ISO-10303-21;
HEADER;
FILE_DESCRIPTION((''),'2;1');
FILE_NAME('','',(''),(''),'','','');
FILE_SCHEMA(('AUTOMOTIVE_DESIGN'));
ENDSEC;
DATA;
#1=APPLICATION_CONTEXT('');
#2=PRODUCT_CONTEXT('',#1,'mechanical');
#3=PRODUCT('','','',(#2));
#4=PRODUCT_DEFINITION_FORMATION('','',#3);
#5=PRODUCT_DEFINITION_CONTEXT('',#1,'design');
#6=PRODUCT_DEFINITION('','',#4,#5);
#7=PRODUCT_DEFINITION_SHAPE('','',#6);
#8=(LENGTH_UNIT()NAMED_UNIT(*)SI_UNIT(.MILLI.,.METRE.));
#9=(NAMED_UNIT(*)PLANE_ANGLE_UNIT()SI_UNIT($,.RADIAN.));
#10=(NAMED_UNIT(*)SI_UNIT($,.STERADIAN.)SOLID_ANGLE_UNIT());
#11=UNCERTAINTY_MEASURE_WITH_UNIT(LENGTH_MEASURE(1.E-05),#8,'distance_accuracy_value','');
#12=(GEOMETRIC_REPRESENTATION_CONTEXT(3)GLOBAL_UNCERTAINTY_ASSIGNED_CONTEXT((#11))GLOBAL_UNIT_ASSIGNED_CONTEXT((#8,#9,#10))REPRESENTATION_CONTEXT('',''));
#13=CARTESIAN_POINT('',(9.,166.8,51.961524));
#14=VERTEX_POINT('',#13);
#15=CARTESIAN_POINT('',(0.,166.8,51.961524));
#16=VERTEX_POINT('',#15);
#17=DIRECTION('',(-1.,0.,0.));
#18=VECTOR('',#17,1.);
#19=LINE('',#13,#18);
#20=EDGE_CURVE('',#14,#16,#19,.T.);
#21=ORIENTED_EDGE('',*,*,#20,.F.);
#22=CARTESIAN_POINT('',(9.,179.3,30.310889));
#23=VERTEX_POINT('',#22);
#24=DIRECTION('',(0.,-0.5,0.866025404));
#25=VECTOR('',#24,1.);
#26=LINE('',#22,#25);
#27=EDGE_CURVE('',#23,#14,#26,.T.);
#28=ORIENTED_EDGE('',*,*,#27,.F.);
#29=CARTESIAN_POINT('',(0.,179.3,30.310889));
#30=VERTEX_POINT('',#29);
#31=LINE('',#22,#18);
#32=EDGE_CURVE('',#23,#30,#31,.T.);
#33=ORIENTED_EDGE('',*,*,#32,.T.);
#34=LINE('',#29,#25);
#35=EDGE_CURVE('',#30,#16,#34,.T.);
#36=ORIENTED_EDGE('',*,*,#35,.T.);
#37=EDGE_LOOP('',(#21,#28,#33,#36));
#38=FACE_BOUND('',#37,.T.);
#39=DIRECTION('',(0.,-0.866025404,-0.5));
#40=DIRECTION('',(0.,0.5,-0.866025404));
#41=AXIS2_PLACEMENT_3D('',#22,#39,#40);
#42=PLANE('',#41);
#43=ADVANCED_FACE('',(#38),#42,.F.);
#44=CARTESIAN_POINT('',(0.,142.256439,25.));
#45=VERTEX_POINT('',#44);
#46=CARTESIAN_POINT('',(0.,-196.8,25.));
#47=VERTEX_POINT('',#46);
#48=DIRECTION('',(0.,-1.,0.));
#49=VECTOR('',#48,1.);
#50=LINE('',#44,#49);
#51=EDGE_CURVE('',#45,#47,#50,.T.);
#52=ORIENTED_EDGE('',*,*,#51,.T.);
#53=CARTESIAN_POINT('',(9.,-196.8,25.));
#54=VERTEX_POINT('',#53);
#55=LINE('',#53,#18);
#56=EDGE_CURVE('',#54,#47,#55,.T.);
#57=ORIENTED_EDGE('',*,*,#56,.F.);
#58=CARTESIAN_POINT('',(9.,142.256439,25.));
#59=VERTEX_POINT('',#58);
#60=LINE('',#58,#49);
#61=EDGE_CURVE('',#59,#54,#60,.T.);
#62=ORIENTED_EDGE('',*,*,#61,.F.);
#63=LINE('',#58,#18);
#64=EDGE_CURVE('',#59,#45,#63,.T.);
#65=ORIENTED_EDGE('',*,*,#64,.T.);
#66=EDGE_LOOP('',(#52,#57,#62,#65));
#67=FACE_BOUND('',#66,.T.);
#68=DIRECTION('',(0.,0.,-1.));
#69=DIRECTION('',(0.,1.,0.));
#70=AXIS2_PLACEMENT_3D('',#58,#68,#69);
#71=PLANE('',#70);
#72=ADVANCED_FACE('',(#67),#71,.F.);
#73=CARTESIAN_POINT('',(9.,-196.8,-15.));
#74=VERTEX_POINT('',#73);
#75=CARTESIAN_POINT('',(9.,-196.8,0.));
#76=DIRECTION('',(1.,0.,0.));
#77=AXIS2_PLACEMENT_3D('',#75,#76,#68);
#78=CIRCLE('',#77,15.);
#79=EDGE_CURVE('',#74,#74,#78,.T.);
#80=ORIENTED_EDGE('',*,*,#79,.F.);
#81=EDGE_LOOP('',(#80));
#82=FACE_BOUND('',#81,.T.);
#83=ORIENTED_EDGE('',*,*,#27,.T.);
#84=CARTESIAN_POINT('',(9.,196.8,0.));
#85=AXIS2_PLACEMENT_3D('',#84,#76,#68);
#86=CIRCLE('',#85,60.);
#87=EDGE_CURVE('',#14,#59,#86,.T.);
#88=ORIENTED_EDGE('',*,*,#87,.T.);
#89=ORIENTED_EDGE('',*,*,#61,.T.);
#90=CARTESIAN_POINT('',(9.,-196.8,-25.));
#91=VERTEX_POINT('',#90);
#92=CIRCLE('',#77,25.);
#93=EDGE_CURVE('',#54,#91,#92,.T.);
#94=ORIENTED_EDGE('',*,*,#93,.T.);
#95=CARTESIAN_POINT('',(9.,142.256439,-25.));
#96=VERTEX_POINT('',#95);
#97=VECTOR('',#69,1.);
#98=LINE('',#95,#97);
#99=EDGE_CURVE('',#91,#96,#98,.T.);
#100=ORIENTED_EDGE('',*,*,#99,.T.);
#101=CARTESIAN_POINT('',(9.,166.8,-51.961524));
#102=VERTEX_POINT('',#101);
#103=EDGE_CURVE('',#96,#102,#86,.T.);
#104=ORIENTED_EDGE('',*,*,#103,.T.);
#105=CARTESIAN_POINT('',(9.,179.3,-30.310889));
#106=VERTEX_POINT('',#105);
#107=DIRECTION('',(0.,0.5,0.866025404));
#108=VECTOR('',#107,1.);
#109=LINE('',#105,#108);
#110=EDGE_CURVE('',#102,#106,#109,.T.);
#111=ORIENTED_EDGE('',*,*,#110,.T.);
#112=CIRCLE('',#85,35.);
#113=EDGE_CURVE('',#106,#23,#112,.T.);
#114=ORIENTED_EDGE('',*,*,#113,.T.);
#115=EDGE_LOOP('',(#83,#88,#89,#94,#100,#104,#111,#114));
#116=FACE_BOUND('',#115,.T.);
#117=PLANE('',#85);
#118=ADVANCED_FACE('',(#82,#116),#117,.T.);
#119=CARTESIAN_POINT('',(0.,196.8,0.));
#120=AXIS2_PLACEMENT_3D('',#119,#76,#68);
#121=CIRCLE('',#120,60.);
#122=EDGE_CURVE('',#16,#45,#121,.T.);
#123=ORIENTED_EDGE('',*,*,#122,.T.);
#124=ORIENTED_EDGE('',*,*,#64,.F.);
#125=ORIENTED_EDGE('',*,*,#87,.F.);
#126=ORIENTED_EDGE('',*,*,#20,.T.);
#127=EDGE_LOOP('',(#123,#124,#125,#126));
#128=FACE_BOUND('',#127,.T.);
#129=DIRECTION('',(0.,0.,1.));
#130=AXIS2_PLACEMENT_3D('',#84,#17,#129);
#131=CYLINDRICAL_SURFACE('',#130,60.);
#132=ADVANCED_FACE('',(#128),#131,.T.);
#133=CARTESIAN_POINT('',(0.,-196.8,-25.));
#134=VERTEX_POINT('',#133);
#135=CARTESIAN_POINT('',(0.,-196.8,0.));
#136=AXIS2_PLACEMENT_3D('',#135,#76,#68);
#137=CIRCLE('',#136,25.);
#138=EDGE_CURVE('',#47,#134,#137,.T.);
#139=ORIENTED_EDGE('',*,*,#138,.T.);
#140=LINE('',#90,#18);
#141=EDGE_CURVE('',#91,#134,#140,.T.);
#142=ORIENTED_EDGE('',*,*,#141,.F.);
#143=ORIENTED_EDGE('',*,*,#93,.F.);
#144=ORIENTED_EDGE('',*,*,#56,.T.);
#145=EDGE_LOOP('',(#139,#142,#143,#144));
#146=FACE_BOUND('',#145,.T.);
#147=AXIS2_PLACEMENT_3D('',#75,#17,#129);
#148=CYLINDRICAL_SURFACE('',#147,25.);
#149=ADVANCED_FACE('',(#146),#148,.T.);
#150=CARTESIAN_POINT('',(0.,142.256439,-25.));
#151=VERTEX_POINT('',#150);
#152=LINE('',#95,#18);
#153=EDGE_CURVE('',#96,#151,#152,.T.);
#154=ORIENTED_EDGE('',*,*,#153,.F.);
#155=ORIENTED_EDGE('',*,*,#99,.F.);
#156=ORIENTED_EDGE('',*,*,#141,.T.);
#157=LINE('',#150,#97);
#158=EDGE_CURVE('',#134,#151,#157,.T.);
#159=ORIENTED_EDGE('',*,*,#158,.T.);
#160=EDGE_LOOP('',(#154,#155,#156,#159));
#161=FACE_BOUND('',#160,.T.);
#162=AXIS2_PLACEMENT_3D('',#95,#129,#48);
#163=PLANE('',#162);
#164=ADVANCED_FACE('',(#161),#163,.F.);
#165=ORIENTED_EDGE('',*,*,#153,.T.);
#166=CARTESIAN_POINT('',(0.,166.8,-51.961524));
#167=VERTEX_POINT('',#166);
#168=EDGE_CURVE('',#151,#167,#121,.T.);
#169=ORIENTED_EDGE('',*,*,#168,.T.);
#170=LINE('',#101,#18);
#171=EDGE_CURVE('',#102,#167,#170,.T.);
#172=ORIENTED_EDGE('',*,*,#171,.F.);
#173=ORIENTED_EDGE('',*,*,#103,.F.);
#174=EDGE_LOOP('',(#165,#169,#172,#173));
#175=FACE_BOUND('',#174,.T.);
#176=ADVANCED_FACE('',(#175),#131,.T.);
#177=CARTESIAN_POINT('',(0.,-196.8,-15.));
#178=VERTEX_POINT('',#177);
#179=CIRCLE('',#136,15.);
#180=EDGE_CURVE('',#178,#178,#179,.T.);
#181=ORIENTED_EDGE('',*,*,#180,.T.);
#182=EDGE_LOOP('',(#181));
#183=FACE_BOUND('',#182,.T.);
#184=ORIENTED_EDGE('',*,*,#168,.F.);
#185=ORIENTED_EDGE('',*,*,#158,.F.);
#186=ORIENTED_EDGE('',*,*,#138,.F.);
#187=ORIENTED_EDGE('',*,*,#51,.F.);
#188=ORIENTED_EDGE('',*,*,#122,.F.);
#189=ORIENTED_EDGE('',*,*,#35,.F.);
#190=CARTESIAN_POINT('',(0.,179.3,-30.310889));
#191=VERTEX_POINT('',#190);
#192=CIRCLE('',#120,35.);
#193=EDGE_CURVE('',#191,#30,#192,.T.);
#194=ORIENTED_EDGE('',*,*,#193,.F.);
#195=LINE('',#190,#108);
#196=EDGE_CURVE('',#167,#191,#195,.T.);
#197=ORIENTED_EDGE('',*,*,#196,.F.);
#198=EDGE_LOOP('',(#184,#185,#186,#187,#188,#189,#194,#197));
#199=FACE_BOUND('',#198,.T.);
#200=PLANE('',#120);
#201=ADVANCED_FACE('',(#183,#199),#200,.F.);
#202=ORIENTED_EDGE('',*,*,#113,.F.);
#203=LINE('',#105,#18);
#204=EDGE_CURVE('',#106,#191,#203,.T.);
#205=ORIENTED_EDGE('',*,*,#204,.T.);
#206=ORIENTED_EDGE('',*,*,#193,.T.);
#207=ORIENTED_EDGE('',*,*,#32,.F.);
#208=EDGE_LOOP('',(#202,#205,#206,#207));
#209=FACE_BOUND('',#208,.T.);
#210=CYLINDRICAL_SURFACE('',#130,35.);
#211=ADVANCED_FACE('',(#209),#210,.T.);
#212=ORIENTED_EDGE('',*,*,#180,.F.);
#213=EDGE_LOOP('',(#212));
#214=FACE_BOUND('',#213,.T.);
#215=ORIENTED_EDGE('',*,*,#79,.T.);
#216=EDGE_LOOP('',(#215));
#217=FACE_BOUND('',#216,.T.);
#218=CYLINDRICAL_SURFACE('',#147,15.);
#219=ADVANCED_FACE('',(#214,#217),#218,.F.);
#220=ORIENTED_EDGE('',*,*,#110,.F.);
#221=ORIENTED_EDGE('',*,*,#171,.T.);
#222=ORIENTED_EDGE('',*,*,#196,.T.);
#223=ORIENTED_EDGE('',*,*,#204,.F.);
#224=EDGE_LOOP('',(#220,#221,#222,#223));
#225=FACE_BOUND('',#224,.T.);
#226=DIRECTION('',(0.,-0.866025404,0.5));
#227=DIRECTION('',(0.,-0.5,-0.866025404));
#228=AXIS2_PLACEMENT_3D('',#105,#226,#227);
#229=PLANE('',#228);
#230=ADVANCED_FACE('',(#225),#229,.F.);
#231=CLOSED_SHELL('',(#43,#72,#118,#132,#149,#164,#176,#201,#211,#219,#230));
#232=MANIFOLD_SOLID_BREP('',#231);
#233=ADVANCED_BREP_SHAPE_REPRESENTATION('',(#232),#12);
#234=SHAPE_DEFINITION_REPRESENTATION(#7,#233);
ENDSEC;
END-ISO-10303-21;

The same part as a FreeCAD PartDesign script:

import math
import FreeCAD as App
import Part
import Sketcher

V = App.Vector
Q = App.Units.Quantity

doc = App.newDocument("Part")
body = doc.addObject("PartDesign::Body", "Body")

sketch1 = body.newObject("Sketcher::SketchObject", "Sketch")
sketch1.AttachmentSupport = (doc.getObject("YZ_Plane"), [""])
sketch1.MapMode = "FlatFace"
sketch1.addGeometry([
    Part.LineSegment(V(167, -52, 0), V(179, -30, 0)),
    Part.ArcOfCircle(Part.Circle(V(197, 0, 0), V(0, 0, 1), 35), math.radians(-120), math.radians(120)),
    Part.LineSegment(V(179, 30, 0), V(167, 52, 0)),
    Part.ArcOfCircle(Part.Circle(V(197, 0, 0), V(0, 0, 1), 60), math.radians(120), math.radians(155)),
    Part.LineSegment(V(142, 25, 0), V(-197, 25, 0)),
    Part.ArcOfCircle(Part.Circle(V(-197, 0, 0), V(0, 0, 1), 25), math.radians(90), math.radians(270)),
    Part.LineSegment(V(-197, -25, 0), V(142, -25, 0)),
    Part.ArcOfCircle(Part.Circle(V(197, 0, 0), V(0, 0, 1), 60), math.radians(-155), math.radians(-120)),
    Part.Circle(V(-197, 0, 0), V(0, 0, 1), 15),
], False)
sketch1.addConstraint([
    Sketcher.Constraint("Coincident", 0, 2, 1, 1),
    Sketcher.Constraint("Coincident", 1, 2, 2, 1),
    Sketcher.Constraint("Coincident", 2, 2, 3, 1),
    Sketcher.Constraint("Coincident", 3, 2, 4, 1),
    Sketcher.Constraint("Tangent", 4, 2, 5, 1),
    Sketcher.Constraint("Tangent", 5, 2, 6, 1),
    Sketcher.Constraint("Coincident", 6, 2, 7, 1),
    Sketcher.Constraint("Coincident", 7, 2, 0, 1),
    Sketcher.Constraint("Horizontal", 4),
    Sketcher.Constraint("Horizontal", 6),
    Sketcher.Constraint("Coincident", 3, 3, 1, 3),
    Sketcher.Constraint("Coincident", 7, 3, 1, 3),
    Sketcher.Constraint("Coincident", 8, 3, 5, 3),
    Sketcher.Constraint("Equal", 3, 7),
    Sketcher.Constraint("Symmetric", 1, 3, 5, 3, -1, 1),
    Sketcher.Constraint("Symmetric", 0, 2, 1, 2, -1),
    Sketcher.Constraint("Vertical", 2, 2, 7, 2),
    Sketcher.Constraint("Diameter", 8, Q("30 mm")),
    Sketcher.Constraint("Radius", 1, Q("35 mm")),
    Sketcher.Constraint("Radius", 3, Q("60 mm")),
    Sketcher.Constraint("Radius", 5, Q("25 mm")),
    Sketcher.Constraint("Angle", 0, Q("60 deg")),
    Sketcher.Constraint("DistanceX", 2, 2, 3, 3, Q("30 mm")),
    Sketcher.Constraint("DistanceX", -1, 1, 1, 3, Q("196.8 mm")),
])
pad1 = body.newObject("PartDesign::Pad", "Pad")
pad1.Profile = sketch1
pad1.Length = 9

doc.recompute()
